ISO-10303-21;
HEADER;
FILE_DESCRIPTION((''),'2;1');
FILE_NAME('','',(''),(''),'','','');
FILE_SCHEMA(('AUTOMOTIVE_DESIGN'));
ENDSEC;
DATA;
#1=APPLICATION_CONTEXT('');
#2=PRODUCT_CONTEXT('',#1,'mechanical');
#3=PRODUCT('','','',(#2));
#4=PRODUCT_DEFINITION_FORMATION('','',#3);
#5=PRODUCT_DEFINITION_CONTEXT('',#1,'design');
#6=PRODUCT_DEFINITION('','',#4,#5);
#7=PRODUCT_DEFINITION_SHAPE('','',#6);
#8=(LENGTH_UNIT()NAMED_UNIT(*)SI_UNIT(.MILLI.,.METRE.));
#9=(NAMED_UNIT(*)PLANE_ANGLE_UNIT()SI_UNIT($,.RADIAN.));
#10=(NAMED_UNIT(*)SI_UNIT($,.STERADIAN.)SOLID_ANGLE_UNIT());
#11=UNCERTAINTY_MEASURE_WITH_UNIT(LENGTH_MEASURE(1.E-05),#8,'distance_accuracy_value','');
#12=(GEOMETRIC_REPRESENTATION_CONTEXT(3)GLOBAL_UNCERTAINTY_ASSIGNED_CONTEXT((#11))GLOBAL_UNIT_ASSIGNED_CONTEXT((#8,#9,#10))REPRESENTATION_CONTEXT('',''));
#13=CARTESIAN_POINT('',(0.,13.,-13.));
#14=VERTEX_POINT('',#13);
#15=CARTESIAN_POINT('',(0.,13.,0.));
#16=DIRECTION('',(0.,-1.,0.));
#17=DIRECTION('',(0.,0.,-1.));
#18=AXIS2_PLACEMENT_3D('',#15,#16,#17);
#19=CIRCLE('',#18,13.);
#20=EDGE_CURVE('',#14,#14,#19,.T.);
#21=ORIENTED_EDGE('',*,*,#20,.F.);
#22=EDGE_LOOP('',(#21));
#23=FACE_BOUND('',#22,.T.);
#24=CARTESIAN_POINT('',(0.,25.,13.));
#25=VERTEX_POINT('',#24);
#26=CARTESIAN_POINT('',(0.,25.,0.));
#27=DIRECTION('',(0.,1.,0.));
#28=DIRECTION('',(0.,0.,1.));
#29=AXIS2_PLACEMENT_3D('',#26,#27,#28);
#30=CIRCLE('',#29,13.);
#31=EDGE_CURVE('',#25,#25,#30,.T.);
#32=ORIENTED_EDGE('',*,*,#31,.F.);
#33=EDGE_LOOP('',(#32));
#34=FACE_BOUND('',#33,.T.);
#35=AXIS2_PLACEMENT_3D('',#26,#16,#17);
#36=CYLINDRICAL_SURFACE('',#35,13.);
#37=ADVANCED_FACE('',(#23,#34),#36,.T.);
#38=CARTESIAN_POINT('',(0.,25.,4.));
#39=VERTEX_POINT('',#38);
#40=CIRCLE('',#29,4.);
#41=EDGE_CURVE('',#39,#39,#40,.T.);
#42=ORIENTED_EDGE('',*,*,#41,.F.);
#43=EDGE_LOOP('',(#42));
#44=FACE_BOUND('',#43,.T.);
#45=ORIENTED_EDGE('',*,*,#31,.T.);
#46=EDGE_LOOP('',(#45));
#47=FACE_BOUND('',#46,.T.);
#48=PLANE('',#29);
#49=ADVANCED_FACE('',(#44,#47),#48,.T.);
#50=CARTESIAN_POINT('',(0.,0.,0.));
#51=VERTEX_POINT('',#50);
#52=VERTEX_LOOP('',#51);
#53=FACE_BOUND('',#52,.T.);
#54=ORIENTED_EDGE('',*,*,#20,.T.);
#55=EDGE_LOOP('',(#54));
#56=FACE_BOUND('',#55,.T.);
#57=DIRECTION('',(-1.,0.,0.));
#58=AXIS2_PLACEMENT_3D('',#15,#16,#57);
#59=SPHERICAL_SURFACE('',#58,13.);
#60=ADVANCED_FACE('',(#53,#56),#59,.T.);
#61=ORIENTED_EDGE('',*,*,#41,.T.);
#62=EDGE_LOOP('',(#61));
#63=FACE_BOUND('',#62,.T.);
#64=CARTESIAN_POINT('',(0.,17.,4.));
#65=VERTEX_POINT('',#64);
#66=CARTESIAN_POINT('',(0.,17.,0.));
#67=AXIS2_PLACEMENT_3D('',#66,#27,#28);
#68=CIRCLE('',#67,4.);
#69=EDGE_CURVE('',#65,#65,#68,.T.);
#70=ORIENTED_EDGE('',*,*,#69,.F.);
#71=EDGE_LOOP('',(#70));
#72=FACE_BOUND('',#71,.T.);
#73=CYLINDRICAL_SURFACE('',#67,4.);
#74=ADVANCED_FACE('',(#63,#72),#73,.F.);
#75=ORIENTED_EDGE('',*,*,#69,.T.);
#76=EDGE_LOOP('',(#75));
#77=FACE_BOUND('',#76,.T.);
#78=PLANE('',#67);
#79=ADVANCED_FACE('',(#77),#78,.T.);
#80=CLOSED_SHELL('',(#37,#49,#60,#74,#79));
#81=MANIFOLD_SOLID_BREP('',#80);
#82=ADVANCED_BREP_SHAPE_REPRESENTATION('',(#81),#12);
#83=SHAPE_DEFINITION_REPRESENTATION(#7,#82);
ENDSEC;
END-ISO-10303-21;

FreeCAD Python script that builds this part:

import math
import FreeCAD as App
import Part
import Sketcher

V = App.Vector
Q = App.Units.Quantity

doc = App.newDocument("Part")
params = doc.addObject("Spreadsheet::Sheet", "Params")
for row, (alias, value) in enumerate([
    ("sketch1_diameter", "26 mm"),
    ("pad1_length", "25 mm"),
    ("sketch2_diameter", "8 mm"),
    ("pocket1_length", "8 mm"),
    ("sketch3_radius", "13 mm"),
    ("groove_angle", "360 deg"),
], start=1):
    params.set(f"A{row}", alias)
    params.set(f"B{row}", "=" + value)
    params.setAlias(f"B{row}", alias)

body = doc.addObject("PartDesign::Body", "Body")

# Sketch on XZ plane
sketch1 = doc.addObject("Sketcher::SketchObject", "Sketch")
body.addObject(sketch1)
sketch1.AttachmentSupport = (doc.XZ_Plane, [""])
sketch1.MapMode = "FlatFace"
sketch1.addGeometry(Part.Circle(V(0, 0, 0), V(0, 0, 1), 13), False)
sketch1.addConstraint([
    Sketcher.Constraint("Coincident", 0, 3, -1, 1),
    Sketcher.Constraint("Diameter", 0, Q("26 mm")),
])
sketch1.setExpression("Constraints[1]", "Params.sketch1_diameter")
pad1 = doc.addObject("PartDesign::Pad", "Pad")
body.addObject(pad1)
pad1.Profile = sketch1
pad1.setExpression("Length", "Params.pad1_length")
pad1.Reversed = True

# Sketch on XZ plane
sketch2 = doc.addObject("Sketcher::SketchObject", "Sketch001")
body.addObject(sketch2)
sketch2.AttachmentSupport = (doc.XZ_Plane, [""])
sketch2.MapMode = "FlatFace"
sketch2.AttachmentOffset = App.Placement(V(0, 0, -25), App.Rotation())
sketch2.addGeometry(Part.Circle(V(0, 0, 0), V(0, 0, 1), 4), False)
sketch2.addConstraint([
    Sketcher.Constraint("Coincident", 0, 3, -1, 1),
    Sketcher.Constraint("Diameter", 0, Q("8 mm")),
])
sketch2.setExpression("Constraints[1]", "Params.sketch2_diameter")
pocket1 = doc.addObject("PartDesign::Pocket", "Pocket")
body.addObject(pocket1)
pocket1.Profile = sketch2
pocket1.setExpression("Length", "Params.pocket1_length")
pocket1.Reversed = True

# Sketch on XY plane
sketch3 = doc.addObject("Sketcher::SketchObject", "Sketch002")
body.addObject(sketch3)
sketch3.AttachmentSupport = (doc.XY_Plane, [""])
sketch3.MapMode = "FlatFace"
sketch3.addGeometry([
    Part.ArcOfCircle(Part.Circle(V(0, 13, 0), V(0, 0, 1), 13), math.radians(-180), math.radians(-90)),  # 0
    Part.LineSegment(V(-13, 13, 0), V(-17.4, 13, 0)),  # 1
    Part.LineSegment(V(-17.4, 13, 0), V(-17.4, -6, 0)),  # 2
    Part.LineSegment(V(-17.4, -6, 0), V(0, -6, 0)),  # 3
    Part.LineSegment(V(0, -6, 0), V(0, 0, 0)),  # 4
], False)
sketch3.addConstraint([
    Sketcher.Constraint("Coincident", 0, 1, 1, 1),
    Sketcher.Constraint("Coincident", 1, 2, 2, 1),
    Sketcher.Constraint("Coincident", 2, 2, 3, 1),
    Sketcher.Constraint("Coincident", 3, 2, 4, 1),
    Sketcher.Constraint("Coincident", 4, 2, 0, 2),
    Sketcher.Constraint("Horizontal", 1),
    Sketcher.Constraint("Vertical", 2),
    Sketcher.Constraint("Horizontal", 3),
    Sketcher.Constraint("Vertical", 4),
    Sketcher.Constraint("Coincident", 4, 2, -1, 1),
    Sketcher.Constraint("PointOnObject", 0, 3, -2),
    Sketcher.Constraint("Radius", 0, Q("13 mm")),
    Sketcher.Constraint("DistanceY", -1, 1, 0, 1, Q("13 mm")),
    Sketcher.Constraint("DistanceX", 1, 2, 1, 1, Q("4.368413 mm")),
    Sketcher.Constraint("DistanceY", 2, 2, 2, 1, Q("18.958157 mm")),
])
sketch3.setExpression("Constraints[11]", "Params.sketch3_radius")
groove = doc.addObject("PartDesign::Groove", "Groove")
body.addObject(groove)
groove.Profile = sketch3
groove.ReferenceAxis = (sketch3, ["V_Axis"])
groove.setExpression("Angle", "Params.groove_angle")

doc.recompute()
